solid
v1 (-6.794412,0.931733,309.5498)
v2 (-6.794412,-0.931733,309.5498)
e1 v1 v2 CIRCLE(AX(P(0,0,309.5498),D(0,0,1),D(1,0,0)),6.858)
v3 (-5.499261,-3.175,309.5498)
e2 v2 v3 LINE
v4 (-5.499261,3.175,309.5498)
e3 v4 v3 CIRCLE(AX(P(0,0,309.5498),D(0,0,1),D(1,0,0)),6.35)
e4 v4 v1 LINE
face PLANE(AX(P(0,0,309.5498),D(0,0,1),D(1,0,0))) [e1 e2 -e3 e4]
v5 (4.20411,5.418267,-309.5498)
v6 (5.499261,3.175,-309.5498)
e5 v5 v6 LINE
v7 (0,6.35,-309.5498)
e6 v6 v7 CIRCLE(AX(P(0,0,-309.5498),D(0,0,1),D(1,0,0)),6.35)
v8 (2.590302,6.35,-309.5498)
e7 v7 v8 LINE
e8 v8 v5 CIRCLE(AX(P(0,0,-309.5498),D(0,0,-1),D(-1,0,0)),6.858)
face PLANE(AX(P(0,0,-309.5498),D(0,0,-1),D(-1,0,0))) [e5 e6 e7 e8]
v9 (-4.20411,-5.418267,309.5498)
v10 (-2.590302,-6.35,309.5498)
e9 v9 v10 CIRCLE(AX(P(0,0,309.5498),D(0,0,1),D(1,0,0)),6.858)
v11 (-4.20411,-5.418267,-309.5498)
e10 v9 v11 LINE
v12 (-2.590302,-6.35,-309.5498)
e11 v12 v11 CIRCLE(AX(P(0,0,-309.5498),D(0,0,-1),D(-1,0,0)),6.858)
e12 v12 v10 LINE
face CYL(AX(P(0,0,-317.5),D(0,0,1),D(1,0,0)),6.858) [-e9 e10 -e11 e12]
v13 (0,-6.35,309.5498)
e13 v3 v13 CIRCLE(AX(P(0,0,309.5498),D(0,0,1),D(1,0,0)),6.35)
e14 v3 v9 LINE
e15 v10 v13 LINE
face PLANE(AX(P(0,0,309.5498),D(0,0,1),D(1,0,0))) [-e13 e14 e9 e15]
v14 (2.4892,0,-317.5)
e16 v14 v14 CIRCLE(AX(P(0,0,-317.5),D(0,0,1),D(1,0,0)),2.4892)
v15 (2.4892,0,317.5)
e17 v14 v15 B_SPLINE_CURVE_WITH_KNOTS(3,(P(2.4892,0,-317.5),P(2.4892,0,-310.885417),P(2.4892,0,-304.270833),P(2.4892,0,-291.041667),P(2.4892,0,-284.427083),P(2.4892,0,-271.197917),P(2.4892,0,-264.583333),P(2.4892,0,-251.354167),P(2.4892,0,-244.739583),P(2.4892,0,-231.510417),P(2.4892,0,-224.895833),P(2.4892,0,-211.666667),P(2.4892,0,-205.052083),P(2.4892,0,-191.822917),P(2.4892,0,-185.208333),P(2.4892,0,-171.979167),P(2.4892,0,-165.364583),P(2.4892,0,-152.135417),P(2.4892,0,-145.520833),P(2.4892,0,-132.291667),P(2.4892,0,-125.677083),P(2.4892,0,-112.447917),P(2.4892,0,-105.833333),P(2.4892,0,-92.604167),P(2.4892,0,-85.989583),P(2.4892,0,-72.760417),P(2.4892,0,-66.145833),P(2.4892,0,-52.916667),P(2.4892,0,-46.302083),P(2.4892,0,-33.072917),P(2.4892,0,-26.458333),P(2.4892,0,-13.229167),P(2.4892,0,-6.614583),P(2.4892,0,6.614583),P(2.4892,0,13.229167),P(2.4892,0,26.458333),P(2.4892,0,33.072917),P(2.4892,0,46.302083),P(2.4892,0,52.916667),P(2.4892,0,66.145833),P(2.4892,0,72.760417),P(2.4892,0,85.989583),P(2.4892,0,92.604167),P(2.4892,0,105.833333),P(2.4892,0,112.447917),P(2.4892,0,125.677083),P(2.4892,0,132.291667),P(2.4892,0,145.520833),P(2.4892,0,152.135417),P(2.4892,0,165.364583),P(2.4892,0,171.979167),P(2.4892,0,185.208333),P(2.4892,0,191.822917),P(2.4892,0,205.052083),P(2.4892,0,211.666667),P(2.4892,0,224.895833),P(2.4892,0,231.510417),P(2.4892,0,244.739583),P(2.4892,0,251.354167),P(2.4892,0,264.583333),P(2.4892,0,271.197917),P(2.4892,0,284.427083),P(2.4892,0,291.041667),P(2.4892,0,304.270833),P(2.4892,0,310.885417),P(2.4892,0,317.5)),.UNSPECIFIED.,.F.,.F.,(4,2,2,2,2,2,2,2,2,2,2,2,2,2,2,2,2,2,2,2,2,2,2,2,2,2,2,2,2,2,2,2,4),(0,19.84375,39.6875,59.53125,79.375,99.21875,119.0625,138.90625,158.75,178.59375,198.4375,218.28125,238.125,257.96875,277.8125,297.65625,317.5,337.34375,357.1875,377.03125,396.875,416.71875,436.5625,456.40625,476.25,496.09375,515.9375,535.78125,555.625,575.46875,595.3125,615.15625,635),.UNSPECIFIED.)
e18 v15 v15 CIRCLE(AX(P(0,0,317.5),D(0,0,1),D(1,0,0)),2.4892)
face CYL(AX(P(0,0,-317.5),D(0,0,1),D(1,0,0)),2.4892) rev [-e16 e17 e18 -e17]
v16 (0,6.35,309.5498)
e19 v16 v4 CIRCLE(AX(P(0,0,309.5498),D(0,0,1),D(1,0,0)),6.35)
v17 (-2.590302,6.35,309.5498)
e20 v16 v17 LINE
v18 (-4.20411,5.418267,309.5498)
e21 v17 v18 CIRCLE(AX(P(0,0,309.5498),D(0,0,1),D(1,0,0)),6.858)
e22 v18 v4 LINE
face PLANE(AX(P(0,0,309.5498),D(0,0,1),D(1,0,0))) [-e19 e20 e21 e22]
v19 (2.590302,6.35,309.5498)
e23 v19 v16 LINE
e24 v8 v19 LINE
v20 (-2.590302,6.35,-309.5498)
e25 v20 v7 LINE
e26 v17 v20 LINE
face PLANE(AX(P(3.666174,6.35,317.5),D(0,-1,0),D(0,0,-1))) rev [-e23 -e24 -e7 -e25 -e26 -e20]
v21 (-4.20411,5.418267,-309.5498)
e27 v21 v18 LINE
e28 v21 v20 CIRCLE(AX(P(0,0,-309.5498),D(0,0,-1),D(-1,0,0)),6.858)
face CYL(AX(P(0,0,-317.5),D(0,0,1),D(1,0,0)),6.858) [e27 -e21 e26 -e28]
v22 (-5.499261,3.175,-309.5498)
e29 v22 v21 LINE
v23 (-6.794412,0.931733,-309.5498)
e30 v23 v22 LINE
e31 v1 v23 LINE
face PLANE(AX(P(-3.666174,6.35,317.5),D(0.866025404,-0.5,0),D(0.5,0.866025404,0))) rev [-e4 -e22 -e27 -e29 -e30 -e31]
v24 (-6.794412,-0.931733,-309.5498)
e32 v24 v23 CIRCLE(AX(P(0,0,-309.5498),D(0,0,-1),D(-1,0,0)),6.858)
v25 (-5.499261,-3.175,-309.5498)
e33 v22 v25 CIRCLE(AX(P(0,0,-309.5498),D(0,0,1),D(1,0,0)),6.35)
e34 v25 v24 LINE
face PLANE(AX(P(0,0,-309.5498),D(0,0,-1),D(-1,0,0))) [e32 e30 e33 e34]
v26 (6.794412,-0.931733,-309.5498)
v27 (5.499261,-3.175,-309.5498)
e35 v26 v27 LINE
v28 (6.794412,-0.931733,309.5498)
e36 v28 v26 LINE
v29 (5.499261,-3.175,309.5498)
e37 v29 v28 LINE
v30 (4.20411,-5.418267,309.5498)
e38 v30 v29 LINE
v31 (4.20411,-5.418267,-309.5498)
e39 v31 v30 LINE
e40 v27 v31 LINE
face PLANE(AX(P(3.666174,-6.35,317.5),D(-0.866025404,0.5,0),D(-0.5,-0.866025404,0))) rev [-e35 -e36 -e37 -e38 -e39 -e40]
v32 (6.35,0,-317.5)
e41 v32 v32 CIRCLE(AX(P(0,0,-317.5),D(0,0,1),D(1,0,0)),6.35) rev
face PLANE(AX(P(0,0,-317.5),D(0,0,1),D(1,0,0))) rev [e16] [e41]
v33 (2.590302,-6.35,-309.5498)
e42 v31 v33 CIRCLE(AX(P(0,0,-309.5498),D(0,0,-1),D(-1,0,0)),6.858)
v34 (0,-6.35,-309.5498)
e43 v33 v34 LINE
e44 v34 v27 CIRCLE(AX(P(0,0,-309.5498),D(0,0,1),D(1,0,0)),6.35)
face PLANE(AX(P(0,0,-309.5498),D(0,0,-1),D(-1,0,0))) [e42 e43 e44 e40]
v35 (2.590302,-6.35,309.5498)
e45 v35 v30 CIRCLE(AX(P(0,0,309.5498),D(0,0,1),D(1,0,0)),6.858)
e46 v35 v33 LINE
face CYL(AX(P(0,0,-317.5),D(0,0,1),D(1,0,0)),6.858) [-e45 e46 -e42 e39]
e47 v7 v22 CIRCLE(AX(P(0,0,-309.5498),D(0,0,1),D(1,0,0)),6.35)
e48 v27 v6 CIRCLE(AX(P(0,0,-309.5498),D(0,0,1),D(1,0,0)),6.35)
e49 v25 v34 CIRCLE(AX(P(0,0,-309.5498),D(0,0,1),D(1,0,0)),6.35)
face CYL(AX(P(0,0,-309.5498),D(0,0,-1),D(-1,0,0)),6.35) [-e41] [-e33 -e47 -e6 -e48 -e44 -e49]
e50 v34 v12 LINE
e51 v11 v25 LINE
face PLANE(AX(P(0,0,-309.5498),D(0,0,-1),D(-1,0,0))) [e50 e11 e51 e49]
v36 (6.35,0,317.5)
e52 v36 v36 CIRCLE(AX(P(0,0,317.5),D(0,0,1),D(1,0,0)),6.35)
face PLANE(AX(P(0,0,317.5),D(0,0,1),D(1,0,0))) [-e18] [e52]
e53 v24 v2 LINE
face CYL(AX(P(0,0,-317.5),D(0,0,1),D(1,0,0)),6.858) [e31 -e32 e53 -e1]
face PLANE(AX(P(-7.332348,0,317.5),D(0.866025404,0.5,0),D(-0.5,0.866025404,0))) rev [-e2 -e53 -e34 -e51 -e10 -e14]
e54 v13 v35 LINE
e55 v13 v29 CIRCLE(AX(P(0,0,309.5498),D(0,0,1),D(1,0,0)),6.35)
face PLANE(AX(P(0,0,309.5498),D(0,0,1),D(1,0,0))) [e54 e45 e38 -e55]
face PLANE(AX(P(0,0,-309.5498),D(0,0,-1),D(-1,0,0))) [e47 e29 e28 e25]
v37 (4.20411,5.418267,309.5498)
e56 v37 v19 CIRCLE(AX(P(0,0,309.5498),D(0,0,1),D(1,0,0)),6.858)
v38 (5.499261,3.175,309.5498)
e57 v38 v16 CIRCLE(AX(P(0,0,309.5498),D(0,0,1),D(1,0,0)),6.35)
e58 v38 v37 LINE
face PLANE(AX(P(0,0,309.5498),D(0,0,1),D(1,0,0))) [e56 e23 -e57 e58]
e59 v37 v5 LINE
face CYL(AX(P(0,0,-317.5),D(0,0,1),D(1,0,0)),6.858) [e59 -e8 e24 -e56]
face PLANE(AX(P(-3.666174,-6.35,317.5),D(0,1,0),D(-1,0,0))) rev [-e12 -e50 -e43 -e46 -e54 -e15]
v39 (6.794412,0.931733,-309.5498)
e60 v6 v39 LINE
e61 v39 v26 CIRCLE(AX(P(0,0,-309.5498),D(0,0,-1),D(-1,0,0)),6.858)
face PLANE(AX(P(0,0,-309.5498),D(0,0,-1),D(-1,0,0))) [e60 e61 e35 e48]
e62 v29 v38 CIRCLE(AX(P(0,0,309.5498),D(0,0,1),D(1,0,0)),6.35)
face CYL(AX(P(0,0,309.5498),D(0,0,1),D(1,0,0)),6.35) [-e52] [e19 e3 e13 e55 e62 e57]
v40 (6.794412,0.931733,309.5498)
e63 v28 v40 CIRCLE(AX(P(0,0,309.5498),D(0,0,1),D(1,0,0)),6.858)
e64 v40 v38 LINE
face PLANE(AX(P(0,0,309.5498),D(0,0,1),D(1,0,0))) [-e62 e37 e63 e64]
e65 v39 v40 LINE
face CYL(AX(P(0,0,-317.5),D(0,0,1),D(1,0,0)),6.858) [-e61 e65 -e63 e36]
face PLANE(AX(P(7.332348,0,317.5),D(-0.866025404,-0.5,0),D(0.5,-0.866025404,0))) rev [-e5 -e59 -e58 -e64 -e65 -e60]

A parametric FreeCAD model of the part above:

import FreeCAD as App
import Part
import Sketcher
from FreeCAD import Vector
Q = App.Units.Quantity


def add_polygon(sketch, points):
    """Adds a closed chain of lines whose ends are joined by coincident constraints."""
    first, n = sketch.GeometryCount, len(points)
    for a, b in zip(points, points[1:] + points[:1]):
        sketch.addGeometry(Part.LineSegment(App.Vector(*a, 0), App.Vector(*b, 0)), False)
    for i in range(n):
        sketch.addConstraint(Sketcher.Constraint("Coincident", first + i, 2, first + (i + 1) % n, 1))

doc = App.newDocument("Part")
params = doc.addObject("Spreadsheet::Sheet", "Params")
for row, (alias, value) in enumerate([
    ("pad1_length", "25 in"),
    ("sketch2_diameter", "0.5 in"),
    ("pocket1_length", "0.313 in"),
    ("sketch3_diameter", "0.54 in"),
    ("sketch4_diameter", "0.196 in"),
], start=1):
    params.set(f"A{row}", alias)
    params.set(f"B{row}", "=" + value)
    params.setAlias(f"B{row}", alias)

body = doc.addObject("PartDesign::Body", "Body")

sketch1 = body.newObject("Sketcher::SketchObject", "Sketch")
sketch1.AttachmentSupport = (doc.getObject("XY_Plane"), [""])
sketch1.MapMode = "FlatFace"
add_polygon(sketch1, [(7.332348, 0), (3.666174, 6.35), (-3.666174, 6.35), (-7.332348, 0), (-3.666174, -6.35), (3.666174, -6.35)])
sketch1.addConstraint([
    Sketcher.Constraint("Horizontal", 1),
    Sketcher.Constraint("Horizontal", 4),
    Sketcher.Constraint("Symmetric", 0, 2, 3, 2, -1, 1),
    Sketcher.Constraint("Symmetric", 2, 2, 5, 2, -1, 1),
    Sketcher.Constraint("PointOnObject", 2, 2, -1),
    Sketcher.Constraint("Parallel", 2, 5),
    Sketcher.Constraint("Vertical", 1, 2, 3, 2),
    Sketcher.Constraint("Angle", 0, Q("120 deg")),
    Sketcher.Constraint("DistanceY", 3, 2, 1, 2, Q("0.5 in")),
    Sketcher.Constraint("DistanceX", 1, 2, 1, 1, Q("7.332348 mm")),
])
pad1 = body.newObject("PartDesign::Pad", "Pad")
pad1.Profile = sketch1
pad1.setExpression("Length", "Params.pad1_length")
pad1.Midplane = True

sketch2 = body.newObject("Sketcher::SketchObject", "Sketch001")
sketch2.AttachmentSupport = (doc.getObject("XY_Plane"), [""])
sketch2.MapMode = "FlatFace"
sketch2.AttachmentOffset = App.Placement(Vector(0, 0, 12.5 * 25.4), App.Rotation())
add_polygon(sketch2, [(-71.862, 70.88), (-71.862, -70.88), (71.862, -70.88), (71.862, 70.88)])
sketch2.addGeometry(Part.Circle(Vector(0, 0, 0), Vector(0, 0, 1), 6.35), False)
sketch2.addConstraint([
    Sketcher.Constraint("Vertical", 0),
    Sketcher.Constraint("Horizontal", 1),
    Sketcher.Constraint("Vertical", 2),
    Sketcher.Constraint("Horizontal", 3),
    Sketcher.Constraint("Coincident", 4, 3, -1, 1),
    Sketcher.Constraint("Symmetric", 0, 2, 2, 2, -1, 1),
    Sketcher.Constraint("Diameter", 4, Q("0.5 in")),
    Sketcher.Constraint("DistanceX", 1, 1, 1, 2, Q("143.724 mm")),
    Sketcher.Constraint("DistanceY", 0, 2, 0, 1, Q("141.76 mm")),
])
sketch2.setExpression("Constraints[10]", "Params.sketch2_diameter")
pocket1 = body.newObject("PartDesign::Pocket", "Pocket")
pocket1.Profile = sketch2
pocket1.setExpression("Length", "Params.pocket1_length")
doc.recompute()

mirrored = body.newObject("PartDesign::Mirrored", "Mirrored")
mirrored.Originals = [pocket1]
mirrored.MirrorPlane = (doc.getObject("XY_Plane"), [""])
body.Tip = mirrored

sketch3 = body.newObject("Sketcher::SketchObject", "Sketch002")
sketch3.AttachmentSupport = (doc.getObject("XY_Plane"), [""])
sketch3.MapMode = "FlatFace"
sketch3.AttachmentOffset = App.Placement(Vector(0, 0, 12.5 * 25.4), App.Rotation())
add_polygon(sketch3, [(-71.862, 70.88), (-71.862, -70.88), (71.862, -70.88), (71.862, 70.88)])
sketch3.addGeometry(Part.Circle(Vector(0, 0, 0), Vector(0, 0, 1), 6.858), False)
sketch3.addConstraint([
    Sketcher.Constraint("Vertical", 0),
    Sketcher.Constraint("Horizontal", 1),
    Sketcher.Constraint("Vertical", 2),
    Sketcher.Constraint("Horizontal", 3),
    Sketcher.Constraint("Coincident", 4, 3, -1, 1),
    Sketcher.Constraint("Symmetric", 0, 2, 2, 2, -1, 1),
    Sketcher.Constraint("Diameter", 4, Q("0.54 in")),
    Sketcher.Constraint("DistanceX", 1, 1, 1, 2, Q("143.724 mm")),
    Sketcher.Constraint("DistanceY", 0, 2, 0, 1, Q("141.76 mm")),
])
sketch3.setExpression("Constraints[10]", "Params.sketch3_diameter")
pocket2 = body.newObject("PartDesign::Pocket", "Pocket001")
pocket2.Profile = sketch3
pocket2.Type = "ThroughAll"

sketch4 = body.newObject("Sketcher::SketchObject", "Sketch003")
sketch4.AttachmentSupport = (doc.getObject("XY_Plane"), [""])
sketch4.MapMode = "FlatFace"
sketch4.AttachmentOffset = App.Placement(Vector(0, 0, 12.5 * 25.4), App.Rotation())
sketch4.addGeometry(Part.Circle(Vector(0, 0, 0), Vector(0, 0, 1), 2.4892), False)
sketch4.addConstraint([
    Sketcher.Constraint("Coincident", 0, 3, -1, 1),
    Sketcher.Constraint("Diameter", 0, Q("0.196 in")),
])
sketch4.setExpression("Constraints[1]", "Params.sketch4_diameter")
pocket3 = body.newObject("PartDesign::Pocket", "Pocket002")
pocket3.Profile = sketch4
pocket3.Type = "ThroughAll"

doc.recompute()
